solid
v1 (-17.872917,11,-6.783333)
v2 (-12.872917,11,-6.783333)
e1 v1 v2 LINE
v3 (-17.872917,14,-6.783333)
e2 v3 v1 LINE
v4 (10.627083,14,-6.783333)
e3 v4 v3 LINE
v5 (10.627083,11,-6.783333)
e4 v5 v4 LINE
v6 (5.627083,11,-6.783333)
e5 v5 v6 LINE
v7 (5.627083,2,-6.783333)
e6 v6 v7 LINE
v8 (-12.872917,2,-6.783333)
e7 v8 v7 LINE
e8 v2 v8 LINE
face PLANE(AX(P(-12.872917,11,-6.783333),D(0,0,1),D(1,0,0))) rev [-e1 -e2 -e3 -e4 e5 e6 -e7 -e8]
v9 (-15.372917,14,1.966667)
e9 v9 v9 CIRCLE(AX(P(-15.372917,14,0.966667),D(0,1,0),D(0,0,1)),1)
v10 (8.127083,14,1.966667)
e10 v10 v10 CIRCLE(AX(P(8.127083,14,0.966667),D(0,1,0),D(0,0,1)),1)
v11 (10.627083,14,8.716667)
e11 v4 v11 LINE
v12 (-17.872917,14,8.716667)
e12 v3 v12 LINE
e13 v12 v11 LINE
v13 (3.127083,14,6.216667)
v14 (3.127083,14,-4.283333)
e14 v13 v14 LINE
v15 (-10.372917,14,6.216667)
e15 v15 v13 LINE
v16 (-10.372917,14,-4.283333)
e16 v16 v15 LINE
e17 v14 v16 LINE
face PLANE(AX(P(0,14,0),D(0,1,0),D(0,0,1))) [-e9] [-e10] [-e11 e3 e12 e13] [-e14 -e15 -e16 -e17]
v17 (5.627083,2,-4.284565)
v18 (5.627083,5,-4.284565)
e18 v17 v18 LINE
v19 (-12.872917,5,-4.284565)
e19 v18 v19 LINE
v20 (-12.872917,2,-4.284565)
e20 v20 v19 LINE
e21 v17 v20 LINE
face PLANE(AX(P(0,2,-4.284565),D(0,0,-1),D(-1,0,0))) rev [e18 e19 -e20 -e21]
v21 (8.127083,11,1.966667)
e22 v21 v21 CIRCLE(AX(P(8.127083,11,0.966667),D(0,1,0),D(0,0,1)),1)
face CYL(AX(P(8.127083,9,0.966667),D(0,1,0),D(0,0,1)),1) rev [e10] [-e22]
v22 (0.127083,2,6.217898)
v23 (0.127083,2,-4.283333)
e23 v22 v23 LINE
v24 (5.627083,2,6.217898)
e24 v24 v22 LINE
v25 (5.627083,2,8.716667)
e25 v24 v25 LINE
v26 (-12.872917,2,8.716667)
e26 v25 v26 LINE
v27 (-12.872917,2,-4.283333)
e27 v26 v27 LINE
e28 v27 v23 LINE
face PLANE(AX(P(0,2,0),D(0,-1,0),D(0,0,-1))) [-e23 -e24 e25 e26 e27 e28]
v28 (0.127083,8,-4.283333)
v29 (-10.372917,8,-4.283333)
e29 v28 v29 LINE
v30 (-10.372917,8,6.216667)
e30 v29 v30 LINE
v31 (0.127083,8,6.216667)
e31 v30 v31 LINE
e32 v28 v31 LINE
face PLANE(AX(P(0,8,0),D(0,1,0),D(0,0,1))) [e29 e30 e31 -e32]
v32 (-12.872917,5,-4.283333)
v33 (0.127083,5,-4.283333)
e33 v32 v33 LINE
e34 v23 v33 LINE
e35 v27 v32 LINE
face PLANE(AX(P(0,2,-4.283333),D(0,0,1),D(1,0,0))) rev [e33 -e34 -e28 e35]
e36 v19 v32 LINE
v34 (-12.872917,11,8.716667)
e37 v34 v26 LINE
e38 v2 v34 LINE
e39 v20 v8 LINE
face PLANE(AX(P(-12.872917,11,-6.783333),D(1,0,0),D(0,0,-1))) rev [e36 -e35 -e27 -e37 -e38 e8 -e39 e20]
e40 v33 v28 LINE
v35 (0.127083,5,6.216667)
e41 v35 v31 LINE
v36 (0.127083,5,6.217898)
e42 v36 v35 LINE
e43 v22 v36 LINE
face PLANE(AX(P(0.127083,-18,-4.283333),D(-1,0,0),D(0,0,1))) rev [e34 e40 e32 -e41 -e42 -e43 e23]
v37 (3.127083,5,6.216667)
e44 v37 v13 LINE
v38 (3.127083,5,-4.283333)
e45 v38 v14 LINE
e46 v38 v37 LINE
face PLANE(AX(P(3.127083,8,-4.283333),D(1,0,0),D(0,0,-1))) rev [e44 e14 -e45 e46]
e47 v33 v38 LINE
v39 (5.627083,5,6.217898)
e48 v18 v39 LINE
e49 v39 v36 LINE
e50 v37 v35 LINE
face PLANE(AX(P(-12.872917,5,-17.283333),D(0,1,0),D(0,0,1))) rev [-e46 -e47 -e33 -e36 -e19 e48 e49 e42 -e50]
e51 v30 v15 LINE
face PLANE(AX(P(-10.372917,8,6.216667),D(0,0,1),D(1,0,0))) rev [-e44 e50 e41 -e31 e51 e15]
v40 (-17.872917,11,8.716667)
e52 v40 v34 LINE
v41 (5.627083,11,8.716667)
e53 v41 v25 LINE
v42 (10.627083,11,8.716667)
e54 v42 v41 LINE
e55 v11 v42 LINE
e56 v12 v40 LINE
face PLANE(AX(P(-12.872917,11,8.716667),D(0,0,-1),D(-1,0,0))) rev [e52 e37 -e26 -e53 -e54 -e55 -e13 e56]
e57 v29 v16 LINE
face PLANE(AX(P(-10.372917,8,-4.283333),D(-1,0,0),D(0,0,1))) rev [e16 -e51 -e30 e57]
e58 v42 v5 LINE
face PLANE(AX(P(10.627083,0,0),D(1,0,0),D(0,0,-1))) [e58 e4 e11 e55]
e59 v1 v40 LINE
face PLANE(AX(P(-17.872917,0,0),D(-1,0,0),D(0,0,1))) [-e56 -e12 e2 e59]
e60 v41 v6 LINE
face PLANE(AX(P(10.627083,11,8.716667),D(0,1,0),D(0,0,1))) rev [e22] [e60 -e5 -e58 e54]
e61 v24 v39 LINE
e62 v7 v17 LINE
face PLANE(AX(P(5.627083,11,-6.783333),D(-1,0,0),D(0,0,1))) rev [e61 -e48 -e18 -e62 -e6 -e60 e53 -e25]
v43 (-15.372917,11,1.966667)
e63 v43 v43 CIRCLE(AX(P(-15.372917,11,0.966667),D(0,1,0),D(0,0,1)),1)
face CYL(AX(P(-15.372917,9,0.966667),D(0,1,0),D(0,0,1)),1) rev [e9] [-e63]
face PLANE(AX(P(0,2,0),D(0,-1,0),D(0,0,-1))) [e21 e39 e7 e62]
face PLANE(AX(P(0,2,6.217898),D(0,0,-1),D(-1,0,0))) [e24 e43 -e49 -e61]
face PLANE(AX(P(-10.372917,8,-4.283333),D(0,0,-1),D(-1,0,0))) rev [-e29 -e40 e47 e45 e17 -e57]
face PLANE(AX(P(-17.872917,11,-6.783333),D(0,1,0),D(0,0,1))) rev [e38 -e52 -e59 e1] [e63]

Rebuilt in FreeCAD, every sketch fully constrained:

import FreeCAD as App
import Part
import Sketcher

doc = App.newDocument("Part")
body = doc.addObject("PartDesign::Body", "Body")

sketch1 = body.newObject("Sketcher::SketchObject", "Sketch")
sketch1.AttachmentSupport = (doc.getObject("XZ_Plane"), [""])
sketch1.MapMode = "FlatFace"
sketch1.addGeometry(Part.LineSegment(App.Vector(-13, -7, 0), App.Vector(-13, 9, 0)), False)
sketch1.addGeometry(Part.LineSegment(App.Vector(-13, 9, 0), App.Vector(6, 9, 0)), False)
sketch1.addGeometry(Part.LineSegment(App.Vector(6, 9, 0), App.Vector(6, -7, 0)), False)
sketch1.addGeometry(Part.LineSegment(App.Vector(6, -7, 0), App.Vector(-13, -7, 0)), False)
sketch1.addConstraint(Sketcher.Constraint("Coincident", 0, 2, 1, 1))
sketch1.addConstraint(Sketcher.Constraint("Coincident", 1, 2, 2, 1))
sketch1.addConstraint(Sketcher.Constraint("Coincident", 2, 2, 3, 1))
sketch1.addConstraint(Sketcher.Constraint("Coincident", 3, 2, 0, 1))
sketch1.addConstraint(Sketcher.Constraint("Vertical", 0))
sketch1.addConstraint(Sketcher.Constraint("Horizontal", 1))
sketch1.addConstraint(Sketcher.Constraint("Vertical", 2))
sketch1.addConstraint(Sketcher.Constraint("Horizontal", 3))
sketch1.addConstraint(Sketcher.Constraint("DistanceX", 1, 1, 1, 2, 18.5))
sketch1.addConstraint(Sketcher.Constraint("DistanceY", 0, 1, 0, 2, 15.5))
sketch1.addConstraint(Sketcher.Constraint("DistanceX", 0, 2, -1, 1, 12.872917))
sketch1.addConstraint(Sketcher.Constraint("DistanceY", -1, 1, 0, 2, 8.716667))
pad1 = body.newObject("PartDesign::Pad", "Pad")
pad1.Profile = sketch1
pad1.Length = 11
pad1.Reversed = True

sketch2 = body.newObject("Sketcher::SketchObject", "Sketch001")
sketch2.AttachmentSupport = (doc.getObject("XZ_Plane"), [""])
sketch2.MapMode = "FlatFace"
sketch2.AttachmentOffset = App.Placement(App.Vector(0, 0, -11), App.Rotation())
sketch2.addGeometry(Part.LineSegment(App.Vector(-13, -7, 0), App.Vector(-13, 9, 0)), False)
sketch2.addGeometry(Part.LineSegment(App.Vector(-13, 9, 0), App.Vector(6, 9, 0)), False)
sketch2.addGeometry(Part.LineSegment(App.Vector(6, 9, 0), App.Vector(6, -7, 0)), False)
sketch2.addGeometry(Part.LineSegment(App.Vector(6, -7, 0), App.Vector(-13, -7, 0)), False)
sketch2.addConstraint(Sketcher.Constraint("Coincident", 0, 2, 1, 1))
sketch2.addConstraint(Sketcher.Constraint("Coincident", 1, 2, 2, 1))
sketch2.addConstraint(Sketcher.Constraint("Coincident", 2, 2, 3, 1))
sketch2.addConstraint(Sketcher.Constraint("Coincident", 3, 2, 0, 1))
sketch2.addConstraint(Sketcher.Constraint("Vertical", 0))
sketch2.addConstraint(Sketcher.Constraint("Horizontal", 1))
sketch2.addConstraint(Sketcher.Constraint("Vertical", 2))
sketch2.addConstraint(Sketcher.Constraint("Horizontal", 3))
sketch2.addConstraint(Sketcher.Constraint("DistanceX", 1, 1, 1, 2, 18.5))
sketch2.addConstraint(Sketcher.Constraint("DistanceY", 0, 1, 0, 2, 15.5))
sketch2.addConstraint(Sketcher.Constraint("DistanceX", 0, 2, -1, 1, 12.872917))
sketch2.addConstraint(Sketcher.Constraint("DistanceY", -1, 1, 0, 2, 8.716667))
pad2 = body.newObject("PartDesign::Pad", "Pad001")
pad2.Profile = sketch2
pad2.Length = 3
pad2.Reversed = True

sketch3 = body.newObject("Sketcher::SketchObject", "Sketch002")
sketch3.AttachmentSupport = (doc.getObject("XZ_Plane"), [""])
sketch3.MapMode = "FlatFace"
sketch3.AttachmentOffset = App.Placement(App.Vector(0, 0, -14), App.Rotation())
sketch3.addGeometry(Part.LineSegment(App.Vector(-10, -4, 0), App.Vector(-10, 6, 0)), False)
sketch3.addGeometry(Part.LineSegment(App.Vector(-10, 6, 0), App.Vector(3, 6, 0)), False)
sketch3.addGeometry(Part.LineSegment(App.Vector(3, 6, 0), App.Vector(3, -4, 0)), False)
sketch3.addGeometry(Part.LineSegment(App.Vector(3, -4, 0), App.Vector(-10, -4, 0)), False)
sketch3.addConstraint(Sketcher.Constraint("Coincident", 0, 2, 1, 1))
sketch3.addConstraint(Sketcher.Constraint("Coincident", 1, 2, 2, 1))
sketch3.addConstraint(Sketcher.Constraint("Coincident", 2, 2, 3, 1))
sketch3.addConstraint(Sketcher.Constraint("Coincident", 3, 2, 0, 1))
sketch3.addConstraint(Sketcher.Constraint("Vertical", 0))
sketch3.addConstraint(Sketcher.Constraint("Horizontal", 1))
sketch3.addConstraint(Sketcher.Constraint("Vertical", 2))
sketch3.addConstraint(Sketcher.Constraint("Horizontal", 3))
sketch3.addConstraint(Sketcher.Constraint("DistanceX", 1, 1, 1, 2, 13.5))
sketch3.addConstraint(Sketcher.Constraint("DistanceY", 0, 1, 0, 2, 10.5))
sketch3.addConstraint(Sketcher.Constraint("DistanceX", 0, 2, -1, 1, 10.372917))
sketch3.addConstraint(Sketcher.Constraint("DistanceY", -1, 1, 0, 2, 6.216667))
pocket1 = body.newObject("PartDesign::Pocket", "Pocket")
pocket1.Profile = sketch3
pocket1.Length = 6
pocket1.Reversed = True

sketch4 = body.newObject("Sketcher::SketchObject", "Sketch003")
sketch4.AttachmentSupport = (doc.getObject("XZ_Plane"), [""])
sketch4.MapMode = "FlatFace"
sketch4.AttachmentOffset = App.Placement(App.Vector(0, 0, -8), App.Rotation())
sketch4.addGeometry(Part.LineSegment(App.Vector(0.1, -4.3, 0), App.Vector(0.1, 6.2, 0)), False)
sketch4.addGeometry(Part.LineSegment(App.Vector(0.1, 6.2, 0), App.Vector(3.1, 6.2, 0)), False)
sketch4.addGeometry(Part.LineSegment(App.Vector(3.1, 6.2, 0), App.Vector(3.1, -4.3, 0)), False)
sketch4.addGeometry(Part.LineSegment(App.Vector(3.1, -4.3, 0), App.Vector(0.1, -4.3, 0)), False)
sketch4.addConstraint(Sketcher.Constraint("Coincident", 0, 2, 1, 1))
sketch4.addConstraint(Sketcher.Constraint("Coincident", 1, 2, 2, 1))
sketch4.addConstraint(Sketcher.Constraint("Coincident", 2, 2, 3, 1))
sketch4.addConstraint(Sketcher.Constraint("Coincident", 3, 2, 0, 1))
sketch4.addConstraint(Sketcher.Constraint("Vertical", 0))
sketch4.addConstraint(Sketcher.Constraint("Horizontal", 1))
sketch4.addConstraint(Sketcher.Constraint("Vertical", 2))
sketch4.addConstraint(Sketcher.Constraint("Horizontal", 3))
sketch4.addConstraint(Sketcher.Constraint("DistanceX", 1, 1, 1, 2, 3.0))
sketch4.addConstraint(Sketcher.Constraint("DistanceY", 0, 1, 0, 2, 10.5))
sketch4.addConstraint(Sketcher.Constraint("DistanceX", -1, 1, 0, 2, 0.127083))
sketch4.addConstraint(Sketcher.Constraint("DistanceY", -1, 1, 0, 2, 6.216667))
pocket2 = body.newObject("PartDesign::Pocket", "Pocket001")
pocket2.Profile = sketch4
pocket2.Length = 26
pocket2.Reversed = True

sketch5 = body.newObject("Sketcher::SketchObject", "Sketch004")
sketch5.AttachmentSupport = (doc.getObject("XY_Plane"), [""])
sketch5.MapMode = "FlatFace"
sketch5.AttachmentOffset = App.Placement(App.Vector(0, 0, 8.716667), App.Rotation())
sketch5.addGeometry(Part.LineSegment(App.Vector(-13, 5, 0), App.Vector(-13, 0, 0)), False)
sketch5.addGeometry(Part.LineSegment(App.Vector(-13, 0, 0), App.Vector(6, 0, 0)), False)
sketch5.addGeometry(Part.LineSegment(App.Vector(6, 0, 0), App.Vector(6, 5, 0)), False)
sketch5.addGeometry(Part.LineSegment(App.Vector(6, 5, 0), App.Vector(-13, 5, 0)), False)
sketch5.addConstraint(Sketcher.Constraint("Coincident", 0, 2, 1, 1))
sketch5.addConstraint(Sketcher.Constraint("Coincident", 1, 2, 2, 1))
sketch5.addConstraint(Sketcher.Constraint("Coincident", 2, 2, 3, 1))
sketch5.addConstraint(Sketcher.Constraint("Coincident", 3, 2, 0, 1))
sketch5.addConstraint(Sketcher.Constraint("Vertical", 0))
sketch5.addConstraint(Sketcher.Constraint("Horizontal", 1))
sketch5.addConstraint(Sketcher.Constraint("Vertical", 2))
sketch5.addConstraint(Sketcher.Constraint("Horizontal", 3))
sketch5.addConstraint(Sketcher.Constraint("PointOnObject", 0, 2, -1))
sketch5.addConstraint(Sketcher.Constraint("DistanceY", 0, 2, 0, 1, 5.0))
sketch5.addConstraint(Sketcher.Constraint("DistanceX", 1, 1, 1, 2, 18.5))
sketch5.addConstraint(Sketcher.Constraint("DistanceX", 0, 2, -1, 1, 12.872917))
pocket3 = body.newObject("PartDesign::Pocket", "Pocket002")
pocket3.Profile = sketch5
pocket3.Length = 26

sketch6 = body.newObject("Sketcher::SketchObject", "Sketch005")
sketch6.AttachmentSupport = (doc.getObject("YZ_Plane"), [""])
sketch6.MapMode = "FlatFace"
sketch6.AttachmentOffset = App.Placement(App.Vector(0, 0, 5.627083), App.Rotation())
sketch6.addGeometry(Part.LineSegment(App.Vector(14, 8.7, 0), App.Vector(11, 8.7, 0)), False)
sketch6.addGeometry(Part.LineSegment(App.Vector(11, 8.7, 0), App.Vector(11, -6.8, 0)), False)
sketch6.addGeometry(Part.LineSegment(App.Vector(11, -6.8, 0), App.Vector(14, -6.8, 0)), False)
sketch6.addGeometry(Part.LineSegment(App.Vector(14, -6.8, 0), App.Vector(14, 8.7, 0)), False)
sketch6.addConstraint(Sketcher.Constraint("Coincident", 0, 2, 1, 1))
sketch6.addConstraint(Sketcher.Constraint("Coincident", 1, 2, 2, 1))
sketch6.addConstraint(Sketcher.Constraint("Coincident", 2, 2, 3, 1))
sketch6.addConstraint(Sketcher.Constraint("Coincident", 3, 2, 0, 1))
sketch6.addConstraint(Sketcher.Constraint("Horizontal", 0))
sketch6.addConstraint(Sketcher.Constraint("Vertical", 1))
sketch6.addConstraint(Sketcher.Constraint("Horizontal", 2))
sketch6.addConstraint(Sketcher.Constraint("Vertical", 3))
sketch6.addConstraint(Sketcher.Constraint("DistanceX", 0, 2, 0, 1, 3.0))
sketch6.addConstraint(Sketcher.Constraint("DistanceY", 1, 2, 1, 1, 15.5))
sketch6.addConstraint(Sketcher.Constraint("DistanceX", -1, 1, 0, 2, 11.0))
sketch6.addConstraint(Sketcher.Constraint("DistanceY", -1, 1, 0, 2, 8.716667))
pad3 = body.newObject("PartDesign::Pad", "Pad002")
pad3.Profile = sketch6
pad3.Length = 5

sketch7 = body.newObject("Sketcher::SketchObject", "Sketch006")
sketch7.AttachmentSupport = (doc.getObject("XZ_Plane"), [""])
sketch7.MapMode = "FlatFace"
sketch7.AttachmentOffset = App.Placement(App.Vector(0, 0, -5), App.Rotation())
sketch7.addGeometry(Part.LineSegment(App.Vector(5.6, 6.2, 0), App.Vector(5.6, 8.7, 0)), False)
sketch7.addGeometry(Part.LineSegment(App.Vector(5.6, 8.7, 0), App.Vector(-12.9, 8.7, 0)), False)
sketch7.addGeometry(Part.LineSegment(App.Vector(-12.9, 8.7, 0), App.Vector(-12.9, -4.3, 0)), False)
sketch7.addGeometry(Part.LineSegment(App.Vector(-12.9, -4.3, 0), App.Vector(0.1, -4.3, 0)), False)
sketch7.addGeometry(Part.LineSegment(App.Vector(0.1, -4.3, 0), App.Vector(0.1, 6.2, 0)), False)
sketch7.addGeometry(Part.LineSegment(App.Vector(0.1, 6.2, 0), App.Vector(5.6, 6.2, 0)), False)
sketch7.addGeometry(Part.LineSegment(App.Vector(-12.9, -4.3, 0), App.Vector(-12.9, -6.8, 0)), False)
sketch7.addGeometry(Part.LineSegment(App.Vector(-12.9, -6.8, 0), App.Vector(5.6, -6.8, 0)), False)
sketch7.addGeometry(Part.LineSegment(App.Vector(5.6, -6.8, 0), App.Vector(5.6, -4.3, 0)), False)
sketch7.addGeometry(Part.LineSegment(App.Vector(5.6, -4.3, 0), App.Vector(-12.9, -4.3, 0)), False)
sketch7.addConstraint(Sketcher.Constraint("Coincident", 0, 2, 1, 1))
sketch7.addConstraint(Sketcher.Constraint("Coincident", 1, 2, 2, 1))
sketch7.addConstraint(Sketcher.Constraint("Coincident", 2, 2, 3, 1))
sketch7.addConstraint(Sketcher.Constraint("Coincident", 3, 2, 4, 1))
sketch7.addConstraint(Sketcher.Constraint("Coincident", 4, 2, 5, 1))
sketch7.addConstraint(Sketcher.Constraint("Coincident", 5, 2, 0, 1))
sketch7.addConstraint(Sketcher.Constraint("Coincident", 6, 2, 7, 1))
sketch7.addConstraint(Sketcher.Constraint("Coincident", 7, 2, 8, 1))
sketch7.addConstraint(Sketcher.Constraint("Coincident", 8, 2, 9, 1))
sketch7.addConstraint(Sketcher.Constraint("Coincident", 9, 2, 6, 1))
sketch7.addConstraint(Sketcher.Constraint("Vertical", 0))
sketch7.addConstraint(Sketcher.Constraint("Horizontal", 1))
sketch7.addConstraint(Sketcher.Constraint("Vertical", 2))
sketch7.addConstraint(Sketcher.Constraint("Horizontal", 3))
sketch7.addConstraint(Sketcher.Constraint("Vertical", 4))
sketch7.addConstraint(Sketcher.Constraint("Horizontal", 5))
sketch7.addConstraint(Sketcher.Constraint("Vertical", 6))
sketch7.addConstraint(Sketcher.Constraint("Horizontal", 7))
sketch7.addConstraint(Sketcher.Constraint("Vertical", 8))
sketch7.addConstraint(Sketcher.Constraint("Horizontal", 9))
sketch7.addConstraint(Sketcher.Constraint("Vertical", 2, 2, 6, 2))
sketch7.addConstraint(Sketcher.Constraint("Vertical", 5, 2, 7, 2))
sketch7.addConstraint(Sketcher.Constraint("Equal", 3, 2))
sketch7.addConstraint(Sketcher.Constraint("Equal", 0, 6))
sketch7.addConstraint(Sketcher.Constraint("DistanceX", 3, 1, 3, 2, 13.0))
sketch7.addConstraint(Sketcher.Constraint("DistanceX", 1, 2, 1, 1, 18.5))
sketch7.addConstraint(Sketcher.Constraint("DistanceY", 6, 2, 2, 2, 2.5))
sketch7.addConstraint(Sketcher.Constraint("DistanceY", 0, 1, 0, 2, 2.498769))
sketch7.addConstraint(Sketcher.Constraint("DistanceY", -1, 1, 4, 2, 6.217898))
sketch7.addConstraint(Sketcher.Constraint("DistanceX", -1, 1, 0, 2, 5.627083))
pad4 = body.newObject("PartDesign::Pad", "Pad003")
pad4.Profile = sketch7
pad4.Length = 3

sketch8 = body.newObject("Sketcher::SketchObject", "Sketch007")
sketch8.AttachmentSupport = (doc.getObject("YZ_Plane"), [""])
sketch8.MapMode = "FlatFace"
sketch8.AttachmentOffset = App.Placement(App.Vector(0, 0, -12.872917), App.Rotation())
sketch8.addGeometry(Part.LineSegment(App.Vector(14, -6.8, 0), App.Vector(11, -6.8, 0)), False)
sketch8.addGeometry(Part.LineSegment(App.Vector(11, -6.8, 0), App.Vector(11, 8.7, 0)), False)
sketch8.addGeometry(Part.LineSegment(App.Vector(11, 8.7, 0), App.Vector(14, 8.7, 0)), False)
sketch8.addGeometry(Part.LineSegment(App.Vector(14, 8.7, 0), App.Vector(14, -6.8, 0)), False)
sketch8.addConstraint(Sketcher.Constraint("Coincident", 0, 2, 1, 1))
sketch8.addConstraint(Sketcher.Constraint("Coincident", 1, 2, 2, 1))
sketch8.addConstraint(Sketcher.Constraint("Coincident", 2, 2, 3, 1))
sketch8.addConstraint(Sketcher.Constraint("Coincident", 3, 2, 0, 1))
sketch8.addConstraint(Sketcher.Constraint("Horizontal", 0))
sketch8.addConstraint(Sketcher.Constraint("Vertical", 1))
sketch8.addConstraint(Sketcher.Constraint("Horizontal", 2))
sketch8.addConstraint(Sketcher.Constraint("Vertical", 3))
sketch8.addConstraint(Sketcher.Constraint("DistanceX", 0, 2, 0, 1, 3.0))
sketch8.addConstraint(Sketcher.Constraint("DistanceY", 1, 1, 1, 2, 15.5))
sketch8.addConstraint(Sketcher.Constraint("DistanceX", -1, 1, 0, 2, 11.0))
sketch8.addConstraint(Sketcher.Constraint("DistanceY", 0, 2, -1, 1, 6.783333))
pad5 = body.newObject("PartDesign::Pad", "Pad004")
pad5.Profile = sketch8
pad5.Length = 5
pad5.Reversed = True

sketch9 = body.newObject("Sketcher::SketchObject", "Sketch008")
sketch9.AttachmentSupport = (doc.getObject("XZ_Plane"), [""])
sketch9.MapMode = "FlatFace"
sketch9.AttachmentOffset = App.Placement(App.Vector(0, 0, -14), App.Rotation())
sketch9.addGeometry(Part.Circle(App.Vector(-15.4, 1, 0), App.Vector(0, 0, 1), 1), False)
sketch9.addGeometry(Part.Circle(App.Vector(8.1, 1, 0), App.Vector(0, 0, 1), 1), False)
sketch9.addConstraint(Sketcher.Constraint("Equal", 0, 1))
sketch9.addConstraint(Sketcher.Constraint("Horizontal", 0, 3, 1, 3))
sketch9.addConstraint(Sketcher.Constraint("Diameter", 0, 2.0))
sketch9.addConstraint(Sketcher.Constraint("DistanceX", 0, 3, 1, 3, 23.5))
sketch9.addConstraint(Sketcher.Constraint("DistanceX", 0, 3, -1, 1, 15.372917))
sketch9.addConstraint(Sketcher.Constraint("DistanceY", -1, 1, 0, 3, 0.966667))
pocket4 = body.newObject("PartDesign::Pocket", "Pocket003")
pocket4.Profile = sketch9
pocket4.Length = 5
pocket4.Reversed = True

doc.recompute()
